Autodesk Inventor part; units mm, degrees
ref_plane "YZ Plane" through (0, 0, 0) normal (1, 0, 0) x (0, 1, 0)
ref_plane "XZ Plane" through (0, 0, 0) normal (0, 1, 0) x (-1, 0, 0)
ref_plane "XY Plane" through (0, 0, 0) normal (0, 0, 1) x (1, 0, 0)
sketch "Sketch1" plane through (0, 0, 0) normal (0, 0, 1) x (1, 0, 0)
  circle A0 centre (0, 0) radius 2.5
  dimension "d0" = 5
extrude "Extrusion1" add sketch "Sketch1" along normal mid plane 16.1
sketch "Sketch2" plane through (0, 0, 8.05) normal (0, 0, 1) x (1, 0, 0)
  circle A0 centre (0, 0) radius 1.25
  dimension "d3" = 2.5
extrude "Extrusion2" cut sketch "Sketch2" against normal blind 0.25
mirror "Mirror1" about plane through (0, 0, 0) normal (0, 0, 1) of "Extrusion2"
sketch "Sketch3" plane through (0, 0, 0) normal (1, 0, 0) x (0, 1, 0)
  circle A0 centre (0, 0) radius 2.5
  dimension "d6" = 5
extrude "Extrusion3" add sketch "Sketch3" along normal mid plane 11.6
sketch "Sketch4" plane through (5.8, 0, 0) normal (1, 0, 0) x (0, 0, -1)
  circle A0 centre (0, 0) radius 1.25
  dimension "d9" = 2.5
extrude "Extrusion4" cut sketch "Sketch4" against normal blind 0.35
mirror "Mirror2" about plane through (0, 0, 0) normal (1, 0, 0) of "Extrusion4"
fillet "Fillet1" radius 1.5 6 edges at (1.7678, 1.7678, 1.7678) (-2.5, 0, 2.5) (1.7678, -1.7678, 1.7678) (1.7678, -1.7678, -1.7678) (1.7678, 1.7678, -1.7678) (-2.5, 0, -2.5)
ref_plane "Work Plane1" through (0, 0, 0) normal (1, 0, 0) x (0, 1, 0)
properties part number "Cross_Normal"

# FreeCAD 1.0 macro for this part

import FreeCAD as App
import Part
import Sketcher

V = App.Vector


def edges_at(feature, points):
    """Names of the edges that pass closest to the given points."""
    edges = feature.Shape.Edges
    near = lambda p: min(range(len(edges)), key=lambda i: edges[i].distToShape(Part.Vertex(*p))[0])
    return sorted({f"Edge{near(p) + 1}" for p in points})

doc = App.newDocument("Part")
body = doc.addObject("PartDesign::Body", "Body")

# Sketch on XY plane
sketch1 = body.newObject("Sketcher::SketchObject", "Sketch")
sketch1.AttachmentSupport = (doc.getObject("XY_Plane"), [""])
sketch1.MapMode = "FlatFace"
sketch1.addGeometry(Part.Circle(V(0, 0, 0), V(0, 0, 1), 2.5), False)
sketch1.addConstraint([
    Sketcher.Constraint("Coincident", 0, 3, -1, 1),
    Sketcher.Constraint("Diameter", 0, 5.0),
])
pad1 = body.newObject("PartDesign::Pad", "Pad")
pad1.Profile = sketch1
pad1.Length = 16.1
pad1.Midplane = True

# Sketch on XY plane
sketch2 = body.newObject("Sketcher::SketchObject", "Sketch001")
sketch2.AttachmentSupport = (doc.getObject("XY_Plane"), [""])
sketch2.MapMode = "FlatFace"
sketch2.AttachmentOffset = App.Placement(V(0, 0, 8.05), App.Rotation())
sketch2.addGeometry(Part.Circle(V(0, 0, 0), V(0, 0, 1), 1.2), False)
sketch2.addConstraint([
    Sketcher.Constraint("Coincident", 0, 3, -1, 1),
    Sketcher.Constraint("Diameter", 0, 2.5),
])
pocket1 = body.newObject("PartDesign::Pocket", "Pocket")
pocket1.Profile = sketch2
pocket1.Length = 0.25
doc.recompute()

mirrored = body.newObject("PartDesign::Mirrored", "Mirrored")
mirrored.Originals = [pocket1]
mirrored.MirrorPlane = (doc.getObject("XY_Plane"), [""])
body.Tip = mirrored

# Sketch on YZ plane
sketch3 = body.newObject("Sketcher::SketchObject", "Sketch002")
sketch3.AttachmentSupport = (doc.getObject("YZ_Plane"), [""])
sketch3.MapMode = "FlatFace"
sketch3.addGeometry(Part.Circle(V(0, 0, 0), V(0, 0, 1), 2.5), False)
sketch3.addConstraint([
    Sketcher.Constraint("Coincident", 0, 3, -1, 1),
    Sketcher.Constraint("Diameter", 0, 5.0),
])
pad2 = body.newObject("PartDesign::Pad", "Pad001")
pad2.Profile = sketch3
pad2.Length = 11.6
pad2.Midplane = True

# Sketch on YZ plane
sketch4 = body.newObject("Sketcher::SketchObject", "Sketch003")
sketch4.AttachmentSupport = (doc.getObject("YZ_Plane"), [""])
sketch4.MapMode = "FlatFace"
sketch4.AttachmentOffset = App.Placement(V(0, 0, 5.8), App.Rotation())
sketch4.addGeometry(Part.Circle(V(0, 0, 0), V(0, 0, 1), 1.2), False)
sketch4.addConstraint([
    Sketcher.Constraint("Coincident", 0, 3, -1, 1),
    Sketcher.Constraint("Diameter", 0, 2.5),
])
pocket2 = body.newObject("PartDesign::Pocket", "Pocket001")
pocket2.Profile = sketch4
pocket2.Length = 0.35
doc.recompute()

mirrored2 = body.newObject("PartDesign::Mirrored", "Mirrored001")
mirrored2.Originals = [pocket2]
mirrored2.MirrorPlane = (doc.getObject("YZ_Plane"), [""])
body.Tip = mirrored2
doc.recompute()

fillet = body.newObject("PartDesign::Fillet", "Fillet")
fillet.Base = (mirrored2, edges_at(mirrored2, [
    (1.768, 1.768, 1.768),
    (-2.5, 0, 2.5),
    (1.768, -1.768, 1.768),
    (1.768, -1.768, -1.768),
    (1.768, 1.768, -1.768),
    (-2.5, 0, -2.5),
]))
fillet.Radius = 1.5

doc.recompute()
